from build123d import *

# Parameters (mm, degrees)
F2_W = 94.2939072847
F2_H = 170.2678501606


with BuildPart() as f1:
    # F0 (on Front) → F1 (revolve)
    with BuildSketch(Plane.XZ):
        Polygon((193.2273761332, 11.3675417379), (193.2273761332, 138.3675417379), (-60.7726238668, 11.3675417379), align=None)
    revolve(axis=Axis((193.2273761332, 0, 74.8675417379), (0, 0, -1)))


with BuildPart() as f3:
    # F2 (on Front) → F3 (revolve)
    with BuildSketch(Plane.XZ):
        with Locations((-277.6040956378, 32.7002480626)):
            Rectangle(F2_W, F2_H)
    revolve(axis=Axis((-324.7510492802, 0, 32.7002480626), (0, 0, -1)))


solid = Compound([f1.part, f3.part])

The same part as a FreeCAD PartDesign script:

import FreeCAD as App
import Part
import Sketcher
Q = App.Units.Quantity


def add_polygon(sketch, points):
    """Adds a closed chain of lines whose ends are joined by coincident constraints."""
    first, n = sketch.GeometryCount, len(points)
    for a, b in zip(points, points[1:] + points[:1]):
        sketch.addGeometry(Part.LineSegment(App.Vector(*a, 0), App.Vector(*b, 0)), False)
    for i in range(n):
        sketch.addConstraint(Sketcher.Constraint("Coincident", first + i, 2, first + (i + 1) % n, 1))

doc = App.newDocument("Part")
params = doc.addObject("Spreadsheet::Sheet", "Params")
for row, (alias, value) in enumerate([
    ("sketch1_width", "10 in"),
    ("sketch1_height", "5 in"),
    ("revolution_angle", "360 deg"),
    ("revolution2_angle", "360 deg"),
], start=1):
    params.set(f"A{row}", alias)
    params.set(f"B{row}", "=" + value)
    params.setAlias(f"B{row}", alias)

body = doc.addObject("PartDesign::Body", "Body")

sketch1 = doc.addObject("Sketcher::SketchObject", "Sketch")
body.addObject(sketch1)
sketch1.AttachmentSupport = (doc.XZ_Plane, [""])
sketch1.MapMode = "FlatFace"
add_polygon(sketch1, [(193, 11), (193, 138), (-61, 11)])
sketch1.addGeometry(Part.LineSegment(App.Vector(193, 138, 0), App.Vector(193, 11, 0)), True)
sketch1.addConstraint(Sketcher.Constraint("Vertical", 0))
sketch1.addConstraint(Sketcher.Constraint("Horizontal", 2))
sketch1.addConstraint(Sketcher.Constraint("Vertical", 3))
sketch1.addConstraint(Sketcher.Constraint("Coincident", 3, 1, 0, 2))
sketch1.addConstraint(Sketcher.Constraint("Horizontal", 1, 2, 3, 2))
sketch1.addConstraint(Sketcher.Constraint("DistanceX", 2, 1, 2, 2, Q("10 in")))
sketch1.addConstraint(Sketcher.Constraint("DistanceY", 0, 1, 0, 2, Q("5 in")))
sketch1.addConstraint(Sketcher.Constraint("DistanceY", -1, 1, 0, 2, Q("138.367542 mm")))
sketch1.addConstraint(Sketcher.Constraint("DistanceX", -1, 1, 0, 2, Q("193.227376 mm")))
sketch1.setExpression("Constraints[8]", "Params.sketch1_width")
sketch1.setExpression("Constraints[9]", "Params.sketch1_height")
revolution = doc.addObject("PartDesign::Revolution", "Revolution")
body.addObject(revolution)
revolution.Profile = sketch1
revolution.ReferenceAxis = (sketch1, ["Axis0"])
revolution.setExpression("Angle", "Params.revolution_angle")
body2 = doc.addObject("PartDesign::Body", "Body001")

sketch2 = doc.addObject("Sketcher::SketchObject", "Sketch001")
body2.addObject(sketch2)
sketch2.AttachmentSupport = (doc.getObject("XZ_Plane001"), [""])
sketch2.MapMode = "FlatFace"
add_polygon(sketch2, [(-325, 118), (-325, -52), (-230, -52), (-230, 118)])
sketch2.addGeometry(Part.LineSegment(App.Vector(-325, 118, 0), App.Vector(-325, -52, 0)), True)
sketch2.addConstraint(Sketcher.Constraint("Vertical", 0))
sketch2.addConstraint(Sketcher.Constraint("Horizontal", 1))
sketch2.addConstraint(Sketcher.Constraint("Vertical", 2))
sketch2.addConstraint(Sketcher.Constraint("Horizontal", 3))
sketch2.addConstraint(Sketcher.Constraint("Vertical", 4))
sketch2.addConstraint(Sketcher.Constraint("Coincident", 4, 1, 3, 2))
sketch2.addConstraint(Sketcher.Constraint("Horizontal", 1, 2, 4, 2))
sketch2.addConstraint(Sketcher.Constraint("DistanceY", 0, 2, 0, 1, Q("170.26785 mm")))
sketch2.addConstraint(Sketcher.Constraint("DistanceX", 1, 1, 1, 2, Q("94.293907 mm")))
sketch2.addConstraint(Sketcher.Constraint("DistanceX", 0, 2, -1, 1, Q("324.751049 mm")))
sketch2.addConstraint(Sketcher.Constraint("DistanceY", 0, 2, -1, 1, Q("52.433677 mm")))
revolution2 = doc.addObject("PartDesign::Revolution", "Revolution001")
body2.addObject(revolution2)
revolution2.Profile = sketch2
revolution2.ReferenceAxis = (sketch2, ["Axis0"])
revolution2.setExpression("Angle", "Params.revolution2_angle")

doc.recompute()
